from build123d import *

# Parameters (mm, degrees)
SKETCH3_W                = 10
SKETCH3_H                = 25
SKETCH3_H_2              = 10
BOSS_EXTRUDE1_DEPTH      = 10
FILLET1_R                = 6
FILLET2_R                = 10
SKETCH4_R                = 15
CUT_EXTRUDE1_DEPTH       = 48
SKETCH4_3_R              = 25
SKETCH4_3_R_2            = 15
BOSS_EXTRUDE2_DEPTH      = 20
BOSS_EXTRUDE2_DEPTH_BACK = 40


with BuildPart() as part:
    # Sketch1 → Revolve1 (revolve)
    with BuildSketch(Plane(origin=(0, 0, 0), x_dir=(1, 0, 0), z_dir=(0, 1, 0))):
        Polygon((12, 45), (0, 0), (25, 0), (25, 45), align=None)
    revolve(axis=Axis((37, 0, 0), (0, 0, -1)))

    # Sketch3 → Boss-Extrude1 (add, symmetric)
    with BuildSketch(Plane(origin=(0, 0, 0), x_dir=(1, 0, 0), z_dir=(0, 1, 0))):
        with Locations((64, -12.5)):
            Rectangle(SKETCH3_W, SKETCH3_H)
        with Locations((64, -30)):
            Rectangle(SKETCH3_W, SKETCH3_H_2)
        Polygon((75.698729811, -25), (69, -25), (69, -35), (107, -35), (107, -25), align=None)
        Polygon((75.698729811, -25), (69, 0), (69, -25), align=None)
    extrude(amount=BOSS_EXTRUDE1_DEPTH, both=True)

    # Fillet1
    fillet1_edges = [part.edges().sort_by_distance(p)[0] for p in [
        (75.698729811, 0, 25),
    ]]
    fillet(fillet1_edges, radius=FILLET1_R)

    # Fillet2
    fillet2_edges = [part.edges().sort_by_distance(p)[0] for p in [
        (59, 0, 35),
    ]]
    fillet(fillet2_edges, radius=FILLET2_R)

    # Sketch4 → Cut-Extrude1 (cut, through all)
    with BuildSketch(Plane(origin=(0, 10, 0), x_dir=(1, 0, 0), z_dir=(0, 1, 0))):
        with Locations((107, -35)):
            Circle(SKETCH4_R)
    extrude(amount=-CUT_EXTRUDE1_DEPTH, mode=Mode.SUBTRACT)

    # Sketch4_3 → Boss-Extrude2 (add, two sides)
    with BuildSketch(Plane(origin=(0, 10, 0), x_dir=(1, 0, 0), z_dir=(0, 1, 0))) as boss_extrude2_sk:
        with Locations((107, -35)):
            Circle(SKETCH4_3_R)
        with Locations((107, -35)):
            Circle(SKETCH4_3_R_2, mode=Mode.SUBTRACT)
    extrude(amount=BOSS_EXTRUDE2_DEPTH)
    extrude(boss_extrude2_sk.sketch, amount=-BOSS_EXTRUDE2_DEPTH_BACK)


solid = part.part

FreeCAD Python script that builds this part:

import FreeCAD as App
import Part
import Sketcher
from FreeCAD import Vector
Q = App.Units.Quantity


def edges_at(feature, points):
    """Names of the edges that pass closest to the given points."""
    edges = feature.Shape.Edges
    near = lambda p: min(range(len(edges)), key=lambda i: edges[i].distToShape(Part.Vertex(*p))[0])
    return sorted({f"Edge{near(p) + 1}" for p in points})


def add_polygon(sketch, points):
    """Adds a closed chain of lines whose ends are joined by coincident constraints."""
    first, n = sketch.GeometryCount, len(points)
    for a, b in zip(points, points[1:] + points[:1]):
        sketch.addGeometry(Part.LineSegment(App.Vector(*a, 0), App.Vector(*b, 0)), False)
    for i in range(n):
        sketch.addConstraint(Sketcher.Constraint("Coincident", first + i, 2, first + (i + 1) % n, 1))

doc = App.newDocument("Part")
body = doc.addObject("PartDesign::Body", "Body")

# Sketch on XZ plane
sketch1 = doc.addObject("Sketcher::SketchObject", "Sketch")
body.addObject(sketch1)
sketch1.AttachmentSupport = (doc.XZ_Plane, [""])
sketch1.MapMode = "FlatFace"
add_polygon(sketch1, [(12, -45), (0, 0), (25, 0), (25, -45)])  # lines 0-3
sketch1.addGeometry(Part.LineSegment(Vector(37, 0, 0), Vector(37, -45, 0)), True)  # axis
sketch1.addConstraint(Sketcher.Constraint("Horizontal", 1))
sketch1.addConstraint(Sketcher.Constraint("Vertical", 2))
sketch1.addConstraint(Sketcher.Constraint("Horizontal", 3))
sketch1.addConstraint(Sketcher.Constraint("Vertical", 4))
sketch1.addConstraint(Sketcher.Constraint("Coincident", 0, 2, -1, 1))
sketch1.addConstraint(Sketcher.Constraint("PointOnObject", 4, 1, -1))
sketch1.addConstraint(Sketcher.Constraint("Horizontal", 3, 2, 4, 2))
sketch1.addConstraint(Sketcher.Constraint("DistanceX", 1, 1, 1, 2, 25.0))
sketch1.addConstraint(Sketcher.Constraint("DistanceX", 3, 2, 3, 1, 13.0))
sketch1.addConstraint(Sketcher.Constraint("DistanceY", 2, 2, 2, 1, 45.0))
sketch1.addConstraint(Sketcher.Constraint("DistanceX", -1, 1, 4, 1, 37.0))
revolution = doc.addObject("PartDesign::Revolution", "Revolution")
body.addObject(revolution)
revolution.Profile = sketch1
revolution.ReferenceAxis = (sketch1, ["Axis0"])
revolution.Angle = 360

# Sketch on XZ plane
sketch2 = doc.addObject("Sketcher::SketchObject", "Sketch001")
body.addObject(sketch2)
sketch2.AttachmentSupport = (doc.XZ_Plane, [""])
sketch2.MapMode = "FlatFace"
add_polygon(sketch2, [(59, 0), (59, 35), (107, 35), (107, 25), (76, 25), (69, 0)])  # lines 0-5
sketch2.addConstraint(Sketcher.Constraint("Vertical", 0))
sketch2.addConstraint(Sketcher.Constraint("Horizontal", 1))
sketch2.addConstraint(Sketcher.Constraint("Vertical", 2))
sketch2.addConstraint(Sketcher.Constraint("Horizontal", 3))
sketch2.addConstraint(Sketcher.Constraint("Horizontal", 5))
sketch2.addConstraint(Sketcher.Constraint("PointOnObject", 4, 2, -1))
sketch2.addConstraint(Sketcher.Constraint("Equal", 5, 2))
sketch2.addConstraint(Sketcher.Constraint("DistanceX", 1, 1, 1, 2, 48.0))
sketch2.addConstraint(Sketcher.Constraint("DistanceX", 5, 2, 5, 1, 10.0))
sketch2.addConstraint(Sketcher.Constraint("DistanceY", 0, 1, 0, 2, 35.0))
sketch2.addConstraint(Sketcher.Constraint("Angle", 4, Q("-105 deg")))
sketch2.addConstraint(Sketcher.Constraint("DistanceX", -1, 1, 0, 2, 59.0))
pad1 = doc.addObject("PartDesign::Pad", "Pad")
body.addObject(pad1)
pad1.Profile = sketch2
pad1.Length = 20
pad1.Midplane = True
doc.recompute()

fillet = doc.addObject("PartDesign::Fillet", "Fillet")
body.addObject(fillet)
fillet.Base = (pad1, edges_at(pad1, [(75.699, 0, 25)]))
fillet.Radius = 6
doc.recompute()

fillet2 = doc.addObject("PartDesign::Fillet", "Fillet001")
body.addObject(fillet2)
fillet2.Base = (fillet, edges_at(fillet, [(59, 0, 35)]))
fillet2.Radius = 10

# Sketch on XZ plane
sketch3 = doc.addObject("Sketcher::SketchObject", "Sketch002")
body.addObject(sketch3)
sketch3.AttachmentSupport = (doc.XZ_Plane, [""])
sketch3.MapMode = "FlatFace"
sketch3.AttachmentOffset = App.Placement(Vector(0, 0, -10), App.Rotation())
sketch3.addGeometry(Part.Circle(Vector(107, 35, 0), Vector(0, 0, 1), 15), False)
sketch3.addConstraint(Sketcher.Constraint("Diameter", 0, 30.0))
sketch3.addConstraint(Sketcher.Constraint("DistanceX", -1, 1, 0, 3, 107.0))
sketch3.addConstraint(Sketcher.Constraint("DistanceY", -1, 1, 0, 3, 35.0))
pocket1 = doc.addObject("PartDesign::Pocket", "Pocket")
body.addObject(pocket1)
pocket1.Profile = sketch3
pocket1.Type = "ThroughAll"
pocket1.Reversed = True

# Sketch on XZ plane
sketch4 = doc.addObject("Sketcher::SketchObject", "Sketch003")
body.addObject(sketch4)
sketch4.AttachmentSupport = (doc.XZ_Plane, [""])
sketch4.MapMode = "FlatFace"
sketch4.AttachmentOffset = App.Placement(Vector(0, 0, -10), App.Rotation())
sketch4.addGeometry(Part.Circle(Vector(107, 35, 0), Vector(0, 0, 1), 25), False)
sketch4.addGeometry(Part.Circle(Vector(107, 35, 0), Vector(0, 0, 1), 15), False)
sketch4.addConstraint(Sketcher.Constraint("Coincident", 1, 3, 0, 3))
sketch4.addConstraint(Sketcher.Constraint("Diameter", 0, 50.0))
sketch4.addConstraint(Sketcher.Constraint("Diameter", 1, 30.0))
sketch4.addConstraint(Sketcher.Constraint("DistanceX", -1, 1, 0, 3, 107.0))
sketch4.addConstraint(Sketcher.Constraint("DistanceY", -1, 1, 0, 3, 35.0))
pad2 = doc.addObject("PartDesign::Pad", "Pad001")
body.addObject(pad2)
pad2.Profile = sketch4
pad2.Type = "TwoLengths"
pad2.Length = 20
pad2.Length2 = 40
pad2.Reversed = True

doc.recompute()
